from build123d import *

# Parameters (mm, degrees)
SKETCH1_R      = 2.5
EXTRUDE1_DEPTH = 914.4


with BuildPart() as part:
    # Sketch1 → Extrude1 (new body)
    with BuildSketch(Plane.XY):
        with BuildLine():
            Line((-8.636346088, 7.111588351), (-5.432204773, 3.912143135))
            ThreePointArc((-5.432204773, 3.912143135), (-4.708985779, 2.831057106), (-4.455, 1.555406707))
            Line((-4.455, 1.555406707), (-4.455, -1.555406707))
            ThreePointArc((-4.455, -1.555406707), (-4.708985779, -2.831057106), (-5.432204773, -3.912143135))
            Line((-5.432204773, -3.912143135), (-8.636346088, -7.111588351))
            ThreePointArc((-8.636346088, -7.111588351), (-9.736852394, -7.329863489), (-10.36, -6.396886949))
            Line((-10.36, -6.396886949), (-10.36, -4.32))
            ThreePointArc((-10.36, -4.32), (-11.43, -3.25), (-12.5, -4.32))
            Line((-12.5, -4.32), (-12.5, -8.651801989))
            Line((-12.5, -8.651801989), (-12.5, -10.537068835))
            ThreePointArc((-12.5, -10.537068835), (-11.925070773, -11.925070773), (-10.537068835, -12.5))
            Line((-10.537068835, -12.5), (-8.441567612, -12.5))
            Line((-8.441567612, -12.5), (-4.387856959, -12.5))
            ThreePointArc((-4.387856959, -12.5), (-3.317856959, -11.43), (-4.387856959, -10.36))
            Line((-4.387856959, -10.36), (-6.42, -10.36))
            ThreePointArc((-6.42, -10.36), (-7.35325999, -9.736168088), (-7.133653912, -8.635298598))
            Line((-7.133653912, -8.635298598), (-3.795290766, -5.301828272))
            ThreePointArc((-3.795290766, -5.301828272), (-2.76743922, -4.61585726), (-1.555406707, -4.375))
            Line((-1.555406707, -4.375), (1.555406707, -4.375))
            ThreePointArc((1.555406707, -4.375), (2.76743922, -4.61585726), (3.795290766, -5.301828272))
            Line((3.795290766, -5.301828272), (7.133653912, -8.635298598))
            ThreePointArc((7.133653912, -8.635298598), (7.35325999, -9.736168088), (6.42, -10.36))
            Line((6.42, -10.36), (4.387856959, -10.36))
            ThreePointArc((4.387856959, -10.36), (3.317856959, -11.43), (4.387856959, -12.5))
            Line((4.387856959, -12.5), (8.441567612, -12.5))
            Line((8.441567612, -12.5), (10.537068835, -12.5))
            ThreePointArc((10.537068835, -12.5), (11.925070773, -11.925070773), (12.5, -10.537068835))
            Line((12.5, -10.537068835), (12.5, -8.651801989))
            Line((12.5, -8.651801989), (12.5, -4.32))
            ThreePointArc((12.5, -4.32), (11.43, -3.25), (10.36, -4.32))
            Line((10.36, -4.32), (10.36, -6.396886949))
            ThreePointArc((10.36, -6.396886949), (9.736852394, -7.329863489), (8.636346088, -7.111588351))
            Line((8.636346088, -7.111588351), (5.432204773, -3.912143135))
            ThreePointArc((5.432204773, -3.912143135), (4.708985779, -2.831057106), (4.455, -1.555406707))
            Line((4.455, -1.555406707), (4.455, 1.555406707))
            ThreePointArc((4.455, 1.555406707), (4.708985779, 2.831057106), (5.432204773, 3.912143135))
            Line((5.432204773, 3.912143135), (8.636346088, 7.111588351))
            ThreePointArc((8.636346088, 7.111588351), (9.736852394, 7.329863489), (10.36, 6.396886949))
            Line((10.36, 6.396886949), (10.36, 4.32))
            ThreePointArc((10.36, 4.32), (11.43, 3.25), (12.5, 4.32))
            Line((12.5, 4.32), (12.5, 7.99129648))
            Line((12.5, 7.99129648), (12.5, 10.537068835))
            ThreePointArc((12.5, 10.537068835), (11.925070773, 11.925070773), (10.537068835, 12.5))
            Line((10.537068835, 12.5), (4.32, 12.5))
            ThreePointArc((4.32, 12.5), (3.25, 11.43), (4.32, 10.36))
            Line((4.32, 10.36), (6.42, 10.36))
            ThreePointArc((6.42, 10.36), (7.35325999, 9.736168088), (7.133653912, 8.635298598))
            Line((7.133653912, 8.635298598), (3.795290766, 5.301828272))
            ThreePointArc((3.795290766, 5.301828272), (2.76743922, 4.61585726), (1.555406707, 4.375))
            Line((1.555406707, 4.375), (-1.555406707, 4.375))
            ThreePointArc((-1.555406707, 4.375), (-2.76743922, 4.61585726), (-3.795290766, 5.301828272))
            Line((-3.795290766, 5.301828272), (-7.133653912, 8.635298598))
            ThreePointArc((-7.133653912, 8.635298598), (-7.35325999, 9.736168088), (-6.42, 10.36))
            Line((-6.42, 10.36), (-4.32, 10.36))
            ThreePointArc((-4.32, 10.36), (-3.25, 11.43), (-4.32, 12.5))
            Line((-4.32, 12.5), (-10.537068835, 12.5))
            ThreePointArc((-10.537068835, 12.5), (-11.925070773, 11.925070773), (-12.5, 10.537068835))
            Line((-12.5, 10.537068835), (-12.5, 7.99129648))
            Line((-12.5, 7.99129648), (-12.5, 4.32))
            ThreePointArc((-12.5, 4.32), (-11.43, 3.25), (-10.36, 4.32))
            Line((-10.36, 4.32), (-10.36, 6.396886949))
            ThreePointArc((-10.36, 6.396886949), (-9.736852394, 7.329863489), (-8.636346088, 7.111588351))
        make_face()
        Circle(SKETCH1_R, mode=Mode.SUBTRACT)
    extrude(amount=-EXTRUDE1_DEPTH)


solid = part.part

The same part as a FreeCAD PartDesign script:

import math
import FreeCAD as App
import Part
import Sketcher
Q = App.Units.Quantity

doc = App.newDocument("Part")
body = doc.addObject("PartDesign::Body", "Body")

sketch1 = body.newObject("Sketcher::SketchObject", "Sketch")
sketch1.AttachmentSupport = (doc.getObject("XY_Plane"), [""])
sketch1.MapMode = "FlatFace"
sketch1.addGeometry([
    Part.LineSegment(App.Vector(-8.636346, 7.111588, 0), App.Vector(-5.432205, 3.912143, 0)),
    Part.ArcOfCircle(Part.Circle(App.Vector(-7.785487, 1.555407, 0), App.Vector(0, 0, 1), 3.330487), math.radians(0), math.radians(45.042018)),
    Part.LineSegment(App.Vector(-4.455, 1.555407, 0), App.Vector(-4.455, -1.555407, 0)),
    Part.ArcOfCircle(Part.Circle(App.Vector(-7.785487, -1.555407, 0), App.Vector(0, 0, 1), 3.330487), math.radians(-45.042018), math.radians(0)),
    Part.LineSegment(App.Vector(-5.432205, -3.912143, 0), App.Vector(-8.636346, -7.111588, 0)),
    Part.ArcOfCircle(Part.Circle(App.Vector(-9.35, -6.396887, 0), App.Vector(0, 0, 1), 1.01), math.radians(-180), math.radians(-45.042018)),
    Part.LineSegment(App.Vector(-10.36, -6.396887, 0), App.Vector(-10.36, -4.32, 0)),
    Part.ArcOfCircle(Part.Circle(App.Vector(-11.43, -4.32, 0), App.Vector(0, 0, 1), 1.07), math.radians(0), math.radians(180)),
    Part.LineSegment(App.Vector(-12.5, -4.32, 0), App.Vector(-12.5, -10.537069, 0)),
    Part.ArcOfCircle(Part.Circle(App.Vector(-10.537069, -10.537069, 0), App.Vector(0, 0, 1), 1.962931), math.radians(180), math.radians(270)),
    Part.LineSegment(App.Vector(-10.537069, -12.5, 0), App.Vector(-4.387857, -12.5, 0)),
    Part.ArcOfCircle(Part.Circle(App.Vector(-4.387857, -11.43, 0), App.Vector(0, 0, 1), 1.07), math.radians(-90), math.radians(90)),
    Part.LineSegment(App.Vector(-4.387857, -10.36, 0), App.Vector(-6.42, -10.36, 0)),
    Part.ArcOfCircle(Part.Circle(App.Vector(-6.42, -9.35, 0), App.Vector(0, 0, 1), 1.01), math.radians(134.957982), math.radians(270)),
    Part.LineSegment(App.Vector(-7.133654, -8.635299, 0), App.Vector(-3.795291, -5.301828, 0)),
    Part.ArcOfCircle(Part.Circle(App.Vector(-1.555407, -7.545, 0), App.Vector(0, 0, 1), 3.17), math.radians(90), math.radians(134.957982)),
    Part.LineSegment(App.Vector(-1.555407, -4.375, 0), App.Vector(1.555407, -4.375, 0)),
    Part.ArcOfCircle(Part.Circle(App.Vector(1.555407, -7.545, 0), App.Vector(0, 0, 1), 3.17), math.radians(45.042018), math.radians(90)),
    Part.LineSegment(App.Vector(3.795291, -5.301828, 0), App.Vector(7.133654, -8.635299, 0)),
    Part.ArcOfCircle(Part.Circle(App.Vector(6.42, -9.35, 0), App.Vector(0, 0, 1), 1.01), math.radians(-90), math.radians(45.042018)),
    Part.LineSegment(App.Vector(6.42, -10.36, 0), App.Vector(4.387857, -10.36, 0)),
    Part.ArcOfCircle(Part.Circle(App.Vector(4.387857, -11.43, 0), App.Vector(0, 0, 1), 1.07), math.radians(90), math.radians(270)),
    Part.LineSegment(App.Vector(4.387857, -12.5, 0), App.Vector(10.537069, -12.5, 0)),
    Part.ArcOfCircle(Part.Circle(App.Vector(10.537069, -10.537069, 0), App.Vector(0, 0, 1), 1.962931), math.radians(-90), math.radians(0)),
    Part.LineSegment(App.Vector(12.5, -10.537069, 0), App.Vector(12.5, -4.32, 0)),
    Part.ArcOfCircle(Part.Circle(App.Vector(11.43, -4.32, 0), App.Vector(0, 0, 1), 1.07), math.radians(0), math.radians(180)),
    Part.LineSegment(App.Vector(10.36, -4.32, 0), App.Vector(10.36, -6.396887, 0)),
    Part.ArcOfCircle(Part.Circle(App.Vector(9.35, -6.396887, 0), App.Vector(0, 0, 1), 1.01), math.radians(-134.957982), math.radians(0)),
    Part.LineSegment(App.Vector(8.636346, -7.111588, 0), App.Vector(5.432205, -3.912143, 0)),
    Part.ArcOfCircle(Part.Circle(App.Vector(7.785487, -1.555407, 0), App.Vector(0, 0, 1), 3.330487), math.radians(180), math.radians(225.042018)),
    Part.LineSegment(App.Vector(4.455, -1.555407, 0), App.Vector(4.455, 1.555407, 0)),
    Part.ArcOfCircle(Part.Circle(App.Vector(7.785487, 1.555407, 0), App.Vector(0, 0, 1), 3.330487), math.radians(134.957982), math.radians(180)),
    Part.LineSegment(App.Vector(5.432205, 3.912143, 0), App.Vector(8.636346, 7.111588, 0)),
    Part.ArcOfCircle(Part.Circle(App.Vector(9.35, 6.396887, 0), App.Vector(0, 0, 1), 1.01), math.radians(0), math.radians(134.957982)),
    Part.LineSegment(App.Vector(10.36, 6.396887, 0), App.Vector(10.36, 4.32, 0)),
    Part.ArcOfCircle(Part.Circle(App.Vector(11.43, 4.32, 0), App.Vector(0, 0, 1), 1.07), math.radians(180), math.radians(360)),
    Part.LineSegment(App.Vector(12.5, 4.32, 0), App.Vector(12.5, 10.537069, 0)),
    Part.ArcOfCircle(Part.Circle(App.Vector(10.537069, 10.537069, 0), App.Vector(0, 0, 1), 1.962931), math.radians(0), math.radians(90)),
    Part.LineSegment(App.Vector(10.537069, 12.5, 0), App.Vector(4.32, 12.5, 0)),
    Part.ArcOfCircle(Part.Circle(App.Vector(4.32, 11.43, 0), App.Vector(0, 0, 1), 1.07), math.radians(90), math.radians(270)),
    Part.LineSegment(App.Vector(4.32, 10.36, 0), App.Vector(6.42, 10.36, 0)),
    Part.ArcOfCircle(Part.Circle(App.Vector(6.42, 9.35, 0), App.Vector(0, 0, 1), 1.01), math.radians(-45.042018), math.radians(90)),
    Part.LineSegment(App.Vector(7.133654, 8.635299, 0), App.Vector(3.795291, 5.301828, 0)),
    Part.ArcOfCircle(Part.Circle(App.Vector(1.555407, 7.545, 0), App.Vector(0, 0, 1), 3.17), math.radians(-90), math.radians(-45.042018)),
    Part.LineSegment(App.Vector(1.555407, 4.375, 0), App.Vector(-1.555407, 4.375, 0)),
    Part.ArcOfCircle(Part.Circle(App.Vector(-1.555407, 7.545, 0), App.Vector(0, 0, 1), 3.17), math.radians(-134.957982), math.radians(-90)),
    Part.LineSegment(App.Vector(-3.795291, 5.301828, 0), App.Vector(-7.133654, 8.635299, 0)),
    Part.ArcOfCircle(Part.Circle(App.Vector(-6.42, 9.35, 0), App.Vector(0, 0, 1), 1.01), math.radians(90), math.radians(225.042018)),
    Part.LineSegment(App.Vector(-6.42, 10.36, 0), App.Vector(-4.32, 10.36, 0)),
    Part.ArcOfCircle(Part.Circle(App.Vector(-4.32, 11.43, 0), App.Vector(0, 0, 1), 1.07), math.radians(-90), math.radians(90)),
    Part.LineSegment(App.Vector(-4.32, 12.5, 0), App.Vector(-10.537069, 12.5, 0)),
    Part.ArcOfCircle(Part.Circle(App.Vector(-10.537069, 10.537069, 0), App.Vector(0, 0, 1), 1.962931), math.radians(90), math.radians(180)),
    Part.LineSegment(App.Vector(-12.5, 10.537069, 0), App.Vector(-12.5, 4.32, 0)),
    Part.ArcOfCircle(Part.Circle(App.Vector(-11.43, 4.32, 0), App.Vector(0, 0, 1), 1.07), math.radians(180), math.radians(360)),
    Part.LineSegment(App.Vector(-10.36, 4.32, 0), App.Vector(-10.36, 6.396887, 0)),
    Part.ArcOfCircle(Part.Circle(App.Vector(-9.35, 6.396887, 0), App.Vector(0, 0, 1), 1.01), math.radians(45.042018), math.radians(180)),
    Part.Circle(App.Vector(0, 0, 0), App.Vector(0, 0, 1), 2.5),
], False)
sketch1.addConstraint([
    Sketcher.Constraint("Tangent", 0, 2, 1, 2),
    Sketcher.Constraint("Tangent", 1, 1, 2, 1),
    Sketcher.Constraint("Tangent", 2, 2, 3, 2),
    Sketcher.Constraint("Tangent", 3, 1, 4, 1),
    Sketcher.Constraint("Tangent", 4, 2, 5, 2),
    Sketcher.Constraint("Tangent", 5, 1, 6, 1),
    Sketcher.Constraint("Tangent", 6, 2, 7, 1),
    Sketcher.Constraint("Tangent", 7, 2, 8, 1),
    Sketcher.Constraint("Tangent", 8, 2, 9, 1),
    Sketcher.Constraint("Tangent", 9, 2, 10, 1),
    Sketcher.Constraint("Tangent", 10, 2, 11, 1),
    Sketcher.Constraint("Tangent", 11, 2, 12, 1),
    Sketcher.Constraint("Tangent", 12, 2, 13, 2),
    Sketcher.Constraint("Tangent", 13, 1, 14, 1),
    Sketcher.Constraint("Tangent", 14, 2, 15, 2),
    Sketcher.Constraint("Tangent", 15, 1, 16, 1),
    Sketcher.Constraint("Tangent", 16, 2, 17, 2),
    Sketcher.Constraint("Tangent", 17, 1, 18, 1),
    Sketcher.Constraint("Tangent", 18, 2, 19, 2),
    Sketcher.Constraint("Tangent", 19, 1, 20, 1),
    Sketcher.Constraint("Tangent", 20, 2, 21, 1),
    Sketcher.Constraint("Tangent", 21, 2, 22, 1),
    Sketcher.Constraint("Tangent", 22, 2, 23, 1),
    Sketcher.Constraint("Tangent", 23, 2, 24, 1),
    Sketcher.Constraint("Tangent", 24, 2, 25, 1),
    Sketcher.Constraint("Tangent", 25, 2, 26, 1),
    Sketcher.Constraint("Tangent", 26, 2, 27, 2),
    Sketcher.Constraint("Tangent", 27, 1, 28, 1),
    Sketcher.Constraint("Tangent", 28, 2, 29, 2),
    Sketcher.Constraint("Tangent", 29, 1, 30, 1),
    Sketcher.Constraint("Tangent", 30, 2, 31, 2),
    Sketcher.Constraint("Tangent", 31, 1, 32, 1),
    Sketcher.Constraint("Tangent", 32, 2, 33, 2),
    Sketcher.Constraint("Tangent", 33, 1, 34, 1),
    Sketcher.Constraint("Tangent", 34, 2, 35, 1),
    Sketcher.Constraint("Tangent", 35, 2, 36, 1),
    Sketcher.Constraint("Tangent", 36, 2, 37, 1),
    Sketcher.Constraint("Tangent", 37, 2, 38, 1),
    Sketcher.Constraint("Tangent", 38, 2, 39, 1),
    Sketcher.Constraint("Tangent", 39, 2, 40, 1),
    Sketcher.Constraint("Tangent", 40, 2, 41, 2),
    Sketcher.Constraint("Tangent", 41, 1, 42, 1),
    Sketcher.Constraint("Tangent", 42, 2, 43, 2),
    Sketcher.Constraint("Tangent", 43, 1, 44, 1),
    Sketcher.Constraint("Tangent", 44, 2, 45, 2),
    Sketcher.Constraint("Tangent", 45, 1, 46, 1),
    Sketcher.Constraint("Tangent", 46, 2, 47, 2),
    Sketcher.Constraint("Tangent", 47, 1, 48, 1),
    Sketcher.Constraint("Tangent", 48, 2, 49, 1),
    Sketcher.Constraint("Tangent", 49, 2, 50, 1),
    Sketcher.Constraint("Tangent", 50, 2, 51, 1),
    Sketcher.Constraint("Tangent", 51, 2, 52, 1),
    Sketcher.Constraint("Tangent", 52, 2, 53, 1),
    Sketcher.Constraint("Tangent", 53, 2, 54, 1),
    Sketcher.Constraint("Tangent", 54, 2, 55, 2),
    Sketcher.Constraint("Tangent", 55, 1, 0, 1),
    Sketcher.Constraint("Vertical", 2),
    Sketcher.Constraint("Vertical", 6),
    Sketcher.Constraint("Vertical", 8),
    Sketcher.Constraint("Horizontal", 10),
    Sketcher.Constraint("Horizontal", 12),
    Sketcher.Constraint("Horizontal", 16),
    Sketcher.Constraint("Horizontal", 20),
    Sketcher.Constraint("Horizontal", 22),
    Sketcher.Constraint("Vertical", 24),
    Sketcher.Constraint("Vertical", 26),
    Sketcher.Constraint("Vertical", 30),
    Sketcher.Constraint("Vertical", 34),
    Sketcher.Constraint("Vertical", 36),
    Sketcher.Constraint("Horizontal", 38),
    Sketcher.Constraint("Horizontal", 40),
    Sketcher.Constraint("Horizontal", 44),
    Sketcher.Constraint("Horizontal", 48),
    Sketcher.Constraint("Horizontal", 50),
    Sketcher.Constraint("Vertical", 52),
    Sketcher.Constraint("Vertical", 54),
    Sketcher.Constraint("Coincident", 56, 3, -1, 1),
    Sketcher.Constraint("Equal", 1, 3),
    Sketcher.Constraint("Equal", 7, 11),
    Sketcher.Constraint("Equal", 5, 13),
    Sketcher.Constraint("Equal", 15, 17),
    Sketcher.Constraint("Equal", 13, 19),
    Sketcher.Constraint("Equal", 11, 21),
    Sketcher.Constraint("Equal", 9, 23),
    Sketcher.Constraint("Equal", 21, 25),
    Sketcher.Constraint("Equal", 19, 27),
    Sketcher.Constraint("Equal", 3, 29),
    Sketcher.Constraint("Equal", 29, 31),
    Sketcher.Constraint("Equal", 27, 33),
    Sketcher.Constraint("Equal", 25, 35),
    Sketcher.Constraint("Equal", 23, 37),
    Sketcher.Constraint("Equal", 35, 39),
    Sketcher.Constraint("Equal", 33, 41),
    Sketcher.Constraint("Equal", 17, 43),
    Sketcher.Constraint("Equal", 43, 45),
    Sketcher.Constraint("Equal", 41, 47),
    Sketcher.Constraint("Equal", 39, 49),
    Sketcher.Constraint("Equal", 37, 51),
    Sketcher.Constraint("Equal", 49, 53),
    Sketcher.Constraint("Equal", 47, 55),
    Sketcher.Constraint("Symmetric", 1, 3, 29, 3, -1, 1),
    Sketcher.Constraint("Symmetric", 5, 3, 33, 3, -1, 1),
    Sketcher.Constraint("Symmetric", 13, 3, 41, 3, -1, 1),
    Sketcher.Constraint("Symmetric", 15, 3, 43, 3, -1, 1),
    Sketcher.Constraint("Symmetric", 19, 3, 47, 3, -1, 1),
    Sketcher.Constraint("Symmetric", 25, 3, 53, 3, -1, 1),
    Sketcher.Constraint("Symmetric", 13, 3, 19, 3, -2),
    Sketcher.Constraint("Symmetric", 7, 3, 25, 3, -2),
    Sketcher.Constraint("Symmetric", 4, 2, 27, 1, -2),
    Sketcher.Constraint("Symmetric", 0, 2, 31, 1, -2),
    Sketcher.Constraint("Parallel", 4, 14),
    Sketcher.Constraint("Parallel", 0, 18),
    Sketcher.Constraint("Parallel", 28, 46),
    Sketcher.Constraint("Horizontal", 35, 3, 53, 3),
    Sketcher.Constraint("Equal", 12, 20),
    Sketcher.Constraint("Equal", 40, 48),
    Sketcher.Constraint("Equal", 44, 2),
    Sketcher.Constraint("Equal", 50, 8),
    Sketcher.Constraint("Diameter", 56, Q("5 mm")),
    Sketcher.Constraint("Radius", 5, Q("1.01 mm")),
    Sketcher.Constraint("Radius", 7, Q("1.07 mm")),
    Sketcher.Constraint("Radius", 15, Q("3.17 mm")),
    Sketcher.Constraint("DistanceX", 40, 1, 40, 2, Q("2.1 mm")),
    Sketcher.Constraint("DistanceX", 7, 2, -1, 1, Q("12.5 mm")),
    Sketcher.Constraint("DistanceY", 9, 2, -1, 1, Q("12.5 mm")),
    Sketcher.Constraint("DistanceY", 7, 3, -1, 1, Q("4.32 mm")),
    Sketcher.Constraint("Radius", 9, Q("1.962931 mm")),
    Sketcher.Constraint("DistanceY", 15, 3, -1, 1, Q("7.545 mm")),
    Sketcher.Constraint("DistanceX", 1, 1, -1, 1, Q("4.455 mm")),
    Sketcher.Constraint("Radius", 1, Q("3.330487 mm")),
    Sketcher.Constraint("Distance", 14, Q("4.7177 mm")),
    Sketcher.Constraint("DistanceX", 10, 1, 10, 2, Q("6.149212 mm")),
])
pad1 = body.newObject("PartDesign::Pad", "Pad")
pad1.Profile = sketch1
pad1.Length = 914.4
pad1.Reversed = True

doc.recompute()
